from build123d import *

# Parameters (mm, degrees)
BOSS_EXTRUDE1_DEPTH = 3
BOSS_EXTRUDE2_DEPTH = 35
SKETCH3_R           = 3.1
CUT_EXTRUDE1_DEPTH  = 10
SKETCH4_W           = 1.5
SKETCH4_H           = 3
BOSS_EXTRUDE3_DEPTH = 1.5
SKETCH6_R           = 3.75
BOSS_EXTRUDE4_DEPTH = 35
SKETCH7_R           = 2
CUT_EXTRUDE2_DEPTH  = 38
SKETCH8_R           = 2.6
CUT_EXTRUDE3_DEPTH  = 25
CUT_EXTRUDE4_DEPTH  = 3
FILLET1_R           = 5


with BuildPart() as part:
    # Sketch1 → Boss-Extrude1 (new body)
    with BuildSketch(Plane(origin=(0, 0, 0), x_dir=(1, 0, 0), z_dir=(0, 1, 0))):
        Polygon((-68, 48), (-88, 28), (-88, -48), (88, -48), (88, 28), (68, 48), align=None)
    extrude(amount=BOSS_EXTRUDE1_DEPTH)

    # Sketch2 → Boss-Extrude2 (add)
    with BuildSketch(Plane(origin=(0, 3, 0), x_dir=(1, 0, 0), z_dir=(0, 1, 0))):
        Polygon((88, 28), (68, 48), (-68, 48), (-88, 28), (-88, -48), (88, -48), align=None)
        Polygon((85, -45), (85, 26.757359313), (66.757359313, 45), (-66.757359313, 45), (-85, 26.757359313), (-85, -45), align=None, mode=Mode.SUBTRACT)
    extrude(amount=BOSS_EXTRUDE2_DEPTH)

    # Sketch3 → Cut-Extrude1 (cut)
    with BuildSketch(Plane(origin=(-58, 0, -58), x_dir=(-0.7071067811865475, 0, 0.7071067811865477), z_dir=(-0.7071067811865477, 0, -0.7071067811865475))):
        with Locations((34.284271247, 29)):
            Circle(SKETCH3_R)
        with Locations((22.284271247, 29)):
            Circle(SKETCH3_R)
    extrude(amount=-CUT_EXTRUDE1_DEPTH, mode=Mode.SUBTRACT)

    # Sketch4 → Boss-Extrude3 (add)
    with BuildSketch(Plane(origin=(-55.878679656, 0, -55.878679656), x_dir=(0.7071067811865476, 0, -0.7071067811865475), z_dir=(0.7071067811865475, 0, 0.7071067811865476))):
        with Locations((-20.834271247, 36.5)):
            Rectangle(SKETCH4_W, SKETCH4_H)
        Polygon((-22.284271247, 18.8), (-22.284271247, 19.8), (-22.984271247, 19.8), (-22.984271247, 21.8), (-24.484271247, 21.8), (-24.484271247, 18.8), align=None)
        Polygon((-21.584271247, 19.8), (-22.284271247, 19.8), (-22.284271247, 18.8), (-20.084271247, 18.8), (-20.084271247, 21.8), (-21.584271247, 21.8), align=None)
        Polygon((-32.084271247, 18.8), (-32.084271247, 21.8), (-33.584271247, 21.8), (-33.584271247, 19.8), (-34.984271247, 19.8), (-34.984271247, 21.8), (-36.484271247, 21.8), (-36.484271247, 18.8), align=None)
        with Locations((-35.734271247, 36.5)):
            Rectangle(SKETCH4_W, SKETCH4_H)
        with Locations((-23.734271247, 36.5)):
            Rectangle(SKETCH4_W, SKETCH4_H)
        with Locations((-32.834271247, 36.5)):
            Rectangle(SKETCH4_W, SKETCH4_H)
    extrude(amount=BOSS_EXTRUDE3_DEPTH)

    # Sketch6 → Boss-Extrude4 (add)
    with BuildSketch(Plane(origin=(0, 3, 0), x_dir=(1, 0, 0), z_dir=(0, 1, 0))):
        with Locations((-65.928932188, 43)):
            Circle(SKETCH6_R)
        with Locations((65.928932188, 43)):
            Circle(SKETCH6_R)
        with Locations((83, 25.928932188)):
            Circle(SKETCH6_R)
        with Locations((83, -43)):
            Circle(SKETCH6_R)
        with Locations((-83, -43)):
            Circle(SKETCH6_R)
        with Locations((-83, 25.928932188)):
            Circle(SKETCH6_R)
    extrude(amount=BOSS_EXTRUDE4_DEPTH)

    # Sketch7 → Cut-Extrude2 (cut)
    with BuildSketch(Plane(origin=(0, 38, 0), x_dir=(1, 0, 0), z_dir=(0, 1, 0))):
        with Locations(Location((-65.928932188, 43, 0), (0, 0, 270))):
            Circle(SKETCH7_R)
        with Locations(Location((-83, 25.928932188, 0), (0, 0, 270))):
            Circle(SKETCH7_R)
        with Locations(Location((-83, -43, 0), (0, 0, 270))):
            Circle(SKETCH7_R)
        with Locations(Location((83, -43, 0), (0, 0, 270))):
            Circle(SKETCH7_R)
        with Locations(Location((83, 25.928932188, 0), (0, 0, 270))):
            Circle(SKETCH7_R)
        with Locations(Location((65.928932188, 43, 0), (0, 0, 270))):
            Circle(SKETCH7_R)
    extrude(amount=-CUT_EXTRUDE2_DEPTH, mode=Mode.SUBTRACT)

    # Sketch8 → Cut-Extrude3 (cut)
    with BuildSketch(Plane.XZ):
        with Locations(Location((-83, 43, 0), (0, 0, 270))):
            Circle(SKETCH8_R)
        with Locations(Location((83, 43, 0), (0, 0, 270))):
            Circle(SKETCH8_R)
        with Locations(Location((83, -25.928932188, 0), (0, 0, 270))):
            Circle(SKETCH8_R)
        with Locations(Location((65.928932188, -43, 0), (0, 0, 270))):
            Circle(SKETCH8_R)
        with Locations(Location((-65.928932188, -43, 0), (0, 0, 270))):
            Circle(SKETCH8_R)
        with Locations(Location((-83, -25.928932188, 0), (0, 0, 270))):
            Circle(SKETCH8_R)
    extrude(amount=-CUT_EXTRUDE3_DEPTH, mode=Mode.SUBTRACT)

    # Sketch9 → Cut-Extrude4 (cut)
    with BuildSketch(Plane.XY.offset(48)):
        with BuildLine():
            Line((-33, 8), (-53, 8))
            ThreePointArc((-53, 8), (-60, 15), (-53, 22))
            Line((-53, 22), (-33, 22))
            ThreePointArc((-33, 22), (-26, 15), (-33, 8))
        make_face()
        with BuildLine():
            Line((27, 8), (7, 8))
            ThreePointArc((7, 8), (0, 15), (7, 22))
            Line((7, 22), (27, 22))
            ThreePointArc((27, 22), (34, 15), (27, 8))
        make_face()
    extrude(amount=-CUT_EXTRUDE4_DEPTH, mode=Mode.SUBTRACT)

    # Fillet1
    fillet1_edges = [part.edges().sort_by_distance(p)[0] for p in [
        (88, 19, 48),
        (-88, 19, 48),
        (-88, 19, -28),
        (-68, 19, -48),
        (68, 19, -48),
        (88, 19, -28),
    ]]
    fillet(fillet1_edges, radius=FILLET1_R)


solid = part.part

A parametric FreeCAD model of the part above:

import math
import FreeCAD as App
import Part
import Sketcher

V = App.Vector
Q = App.Units.Quantity


def edges_at(feature, points):
    """Names of the edges that pass closest to the given points."""
    edges = feature.Shape.Edges
    near = lambda p: min(range(len(edges)), key=lambda i: edges[i].distToShape(Part.Vertex(*p))[0])
    return sorted({f"Edge{near(p) + 1}" for p in points})

doc = App.newDocument("Part")
body = doc.addObject("PartDesign::Body", "Body")

sketch1 = body.newObject("Sketcher::SketchObject", "Sketch")
sketch1.AttachmentSupport = (doc.getObject("XZ_Plane"), [""])
sketch1.MapMode = "FlatFace"
sketch1.addGeometry([
    Part.LineSegment(V(-68, -48, 0), V(-88, -28, 0)),
    Part.LineSegment(V(-88, -28, 0), V(-88, 48, 0)),
    Part.LineSegment(V(-88, 48, 0), V(88, 48, 0)),
    Part.LineSegment(V(88, 48, 0), V(88, -28, 0)),
    Part.LineSegment(V(88, -28, 0), V(68, -48, 0)),
    Part.LineSegment(V(68, -48, 0), V(-68, -48, 0)),
], False)
sketch1.addConstraint([
    Sketcher.Constraint("Coincident", 0, 2, 1, 1),
    Sketcher.Constraint("Coincident", 1, 2, 2, 1),
    Sketcher.Constraint("Coincident", 2, 2, 3, 1),
    Sketcher.Constraint("Coincident", 3, 2, 4, 1),
    Sketcher.Constraint("Coincident", 4, 2, 5, 1),
    Sketcher.Constraint("Coincident", 5, 2, 0, 1),
    Sketcher.Constraint("Vertical", 1),
    Sketcher.Constraint("Horizontal", 2),
    Sketcher.Constraint("Vertical", 3),
    Sketcher.Constraint("Horizontal", 5),
    Sketcher.Constraint("Symmetric", 0, 2, 3, 2, -2),
    Sketcher.Constraint("Perpendicular", 0, 4),
    Sketcher.Constraint("Equal", 0, 4),
    Sketcher.Constraint("DistanceX", 2, 1, 2, 2, Q("176 mm")),
    Sketcher.Constraint("DistanceX", 5, 2, 5, 1, Q("136 mm")),
    Sketcher.Constraint("DistanceY", 1, 1, 1, 2, Q("76 mm")),
    Sketcher.Constraint("DistanceY", 0, 2, -1, 1, Q("28 mm")),
])
pad1 = body.newObject("PartDesign::Pad", "Pad")
pad1.Profile = sketch1
pad1.Length = 3
pad1.Reversed = True

sketch2 = body.newObject("Sketcher::SketchObject", "Sketch001")
sketch2.AttachmentSupport = (doc.getObject("XZ_Plane"), [""])
sketch2.MapMode = "FlatFace"
sketch2.AttachmentOffset = App.Placement(V(0, 0, -3), App.Rotation())
sketch2.addGeometry([
    Part.LineSegment(V(88, -28, 0), V(68, -48, 0)),
    Part.LineSegment(V(68, -48, 0), V(-68, -48, 0)),
    Part.LineSegment(V(-68, -48, 0), V(-88, -28, 0)),
    Part.LineSegment(V(-88, -28, 0), V(-88, 48, 0)),
    Part.LineSegment(V(-88, 48, 0), V(88, 48, 0)),
    Part.LineSegment(V(88, 48, 0), V(88, -28, 0)),
    Part.LineSegment(V(85, -27, 0), V(85, 45, 0)),
    Part.LineSegment(V(85, 45, 0), V(-85, 45, 0)),
    Part.LineSegment(V(-85, 45, 0), V(-85, -27, 0)),
    Part.LineSegment(V(-85, -27, 0), V(-67, -45, 0)),
    Part.LineSegment(V(-67, -45, 0), V(67, -45, 0)),
    Part.LineSegment(V(67, -45, 0), V(85, -27, 0)),
], False)
sketch2.addConstraint([
    Sketcher.Constraint("Coincident", 0, 2, 1, 1),
    Sketcher.Constraint("Coincident", 1, 2, 2, 1),
    Sketcher.Constraint("Coincident", 2, 2, 3, 1),
    Sketcher.Constraint("Coincident", 3, 2, 4, 1),
    Sketcher.Constraint("Coincident", 4, 2, 5, 1),
    Sketcher.Constraint("Coincident", 5, 2, 0, 1),
    Sketcher.Constraint("Coincident", 6, 2, 7, 1),
    Sketcher.Constraint("Coincident", 7, 2, 8, 1),
    Sketcher.Constraint("Coincident", 8, 2, 9, 1),
    Sketcher.Constraint("Coincident", 9, 2, 10, 1),
    Sketcher.Constraint("Coincident", 10, 2, 11, 1),
    Sketcher.Constraint("Coincident", 11, 2, 6, 1),
    Sketcher.Constraint("Horizontal", 1),
    Sketcher.Constraint("Vertical", 3),
    Sketcher.Constraint("Horizontal", 4),
    Sketcher.Constraint("Vertical", 5),
    Sketcher.Constraint("Vertical", 6),
    Sketcher.Constraint("Horizontal", 7),
    Sketcher.Constraint("Vertical", 8),
    Sketcher.Constraint("Horizontal", 10),
    Sketcher.Constraint("Symmetric", 2, 2, 5, 2, -2),
    Sketcher.Constraint("Symmetric", 8, 2, 11, 2, -2),
    Sketcher.Constraint("Perpendicular", 0, 2),
    Sketcher.Constraint("Parallel", 2, 9),
    Sketcher.Constraint("Perpendicular", 9, 11),
    Sketcher.Constraint("Equal", 0, 2),
    Sketcher.Constraint("DistanceX", 1, 2, 1, 1, Q("136 mm")),
    Sketcher.Constraint("DistanceX", 4, 1, 4, 2, Q("176 mm")),
    Sketcher.Constraint("DistanceX", 7, 2, 7, 1, Q("170 mm")),
    Sketcher.Constraint("DistanceY", 3, 1, 3, 2, Q("76 mm")),
    Sketcher.Constraint("DistanceY", 0, 2, -1, 1, Q("48 mm")),
    Sketcher.Constraint("DistanceY", -1, 1, 6, 2, Q("45 mm")),
    Sketcher.Constraint("DistanceY", 9, 2, -1, 1, Q("45 mm")),
    Sketcher.Constraint("DistanceX", 10, 1, 10, 2, Q("133.514719 mm")),
])
pad2 = body.newObject("PartDesign::Pad", "Pad001")
pad2.Profile = sketch2
pad2.Length = 35
pad2.Reversed = True

sketch3 = body.newObject("Sketcher::SketchObject", "Sketch002")
sketch3.Placement = App.Placement(V(-58, 0, -58), App.Rotation(V(-0.707106781, 0, 0.707106781), V(0, 0.999999999, 0), V(-0.707106781, 0, -0.707106781), "ZXY"))
sketch3.addGeometry([
    Part.Circle(V(34.3, 29, 0), V(0, 0, 1), 3.1),
    Part.Circle(V(22.3, 29, 0), V(0, 0, 1), 3.1),
], False)
sketch3.addConstraint([
    Sketcher.Constraint("Equal", 0, 1),
    Sketcher.Constraint("Horizontal", 0, 3, 1, 3),
    Sketcher.Constraint("Diameter", 0, Q("6.2 mm")),
    Sketcher.Constraint("DistanceY", -1, 1, 0, 3, Q("29 mm")),
    Sketcher.Constraint("DistanceX", 1, 3, 0, 3, Q("12 mm")),
    Sketcher.Constraint("DistanceX", -1, 1, 0, 3, Q("34.284271 mm")),
])
pocket1 = body.newObject("PartDesign::Pocket", "Pocket")
pocket1.Profile = sketch3
pocket1.Length = 10

sketch4 = body.newObject("Sketcher::SketchObject", "Sketch003")
sketch4.Placement = App.Placement(V(-55.87868, 0, -55.87868), App.Rotation(V(0.707106781, 0, -0.707106781), V(0, 0.999999999, 0), V(0.707106781, 0, 0.707106781), "ZXY"))
sketch4.addGeometry([
    Part.LineSegment(V(-21.6, 38, 0), V(-21.6, 35, 0)),
    Part.LineSegment(V(-21.6, 35, 0), V(-20.1, 35, 0)),
    Part.LineSegment(V(-20.1, 35, 0), V(-20.1, 38, 0)),
    Part.LineSegment(V(-20.1, 38, 0), V(-21.6, 38, 0)),
    Part.LineSegment(V(-23, 19.8, 0), V(-23, 21.8, 0)),
    Part.LineSegment(V(-23, 21.8, 0), V(-24.5, 21.8, 0)),
    Part.LineSegment(V(-24.5, 21.8, 0), V(-24.5, 18.8, 0)),
    Part.LineSegment(V(-24.5, 18.8, 0), V(-20.1, 18.8, 0)),
    Part.LineSegment(V(-20.1, 18.8, 0), V(-20.1, 21.8, 0)),
    Part.LineSegment(V(-20.1, 21.8, 0), V(-21.6, 21.8, 0)),
    Part.LineSegment(V(-21.6, 21.8, 0), V(-21.6, 19.8, 0)),
    Part.LineSegment(V(-21.6, 19.8, 0), V(-23, 19.8, 0)),
    Part.LineSegment(V(-32.1, 18.8, 0), V(-32.1, 21.8, 0)),
    Part.LineSegment(V(-32.1, 21.8, 0), V(-33.6, 21.8, 0)),
    Part.LineSegment(V(-33.6, 21.8, 0), V(-33.6, 19.8, 0)),
    Part.LineSegment(V(-33.6, 19.8, 0), V(-35, 19.8, 0)),
    Part.LineSegment(V(-35, 19.8, 0), V(-35, 21.8, 0)),
    Part.LineSegment(V(-35, 21.8, 0), V(-36.5, 21.8, 0)),
    Part.LineSegment(V(-36.5, 21.8, 0), V(-36.5, 18.8, 0)),
    Part.LineSegment(V(-36.5, 18.8, 0), V(-32.1, 18.8, 0)),
    Part.LineSegment(V(-36.5, 38, 0), V(-36.5, 35, 0)),
    Part.LineSegment(V(-36.5, 35, 0), V(-35, 35, 0)),
    Part.LineSegment(V(-35, 35, 0), V(-35, 38, 0)),
    Part.LineSegment(V(-35, 38, 0), V(-36.5, 38, 0)),
    Part.LineSegment(V(-24.5, 38, 0), V(-24.5, 35, 0)),
    Part.LineSegment(V(-24.5, 35, 0), V(-23, 35, 0)),
    Part.LineSegment(V(-23, 35, 0), V(-23, 38, 0)),
    Part.LineSegment(V(-23, 38, 0), V(-24.5, 38, 0)),
    Part.LineSegment(V(-33.6, 38, 0), V(-33.6, 35, 0)),
    Part.LineSegment(V(-33.6, 35, 0), V(-32.1, 35, 0)),
    Part.LineSegment(V(-32.1, 35, 0), V(-32.1, 38, 0)),
    Part.LineSegment(V(-32.1, 38, 0), V(-33.6, 38, 0)),
], False)
sketch4.addConstraint([
    Sketcher.Constraint("Coincident", 0, 2, 1, 1),
    Sketcher.Constraint("Coincident", 1, 2, 2, 1),
    Sketcher.Constraint("Coincident", 2, 2, 3, 1),
    Sketcher.Constraint("Coincident", 3, 2, 0, 1),
    Sketcher.Constraint("Coincident", 4, 2, 5, 1),
    Sketcher.Constraint("Coincident", 5, 2, 6, 1),
    Sketcher.Constraint("Coincident", 6, 2, 7, 1),
    Sketcher.Constraint("Coincident", 7, 2, 8, 1),
    Sketcher.Constraint("Coincident", 8, 2, 9, 1),
    Sketcher.Constraint("Coincident", 9, 2, 10, 1),
    Sketcher.Constraint("Coincident", 10, 2, 11, 1),
    Sketcher.Constraint("Coincident", 11, 2, 4, 1),
    Sketcher.Constraint("Coincident", 12, 2, 13, 1),
    Sketcher.Constraint("Coincident", 13, 2, 14, 1),
    Sketcher.Constraint("Coincident", 14, 2, 15, 1),
    Sketcher.Constraint("Coincident", 15, 2, 16, 1),
    Sketcher.Constraint("Coincident", 16, 2, 17, 1),
    Sketcher.Constraint("Coincident", 17, 2, 18, 1),
    Sketcher.Constraint("Coincident", 18, 2, 19, 1),
    Sketcher.Constraint("Coincident", 19, 2, 12, 1),
    Sketcher.Constraint("Coincident", 20, 2, 21, 1),
    Sketcher.Constraint("Coincident", 21, 2, 22, 1),
    Sketcher.Constraint("Coincident", 22, 2, 23, 1),
    Sketcher.Constraint("Coincident", 23, 2, 20, 1),
    Sketcher.Constraint("Coincident", 24, 2, 25, 1),
    Sketcher.Constraint("Coincident", 25, 2, 26, 1),
    Sketcher.Constraint("Coincident", 26, 2, 27, 1),
    Sketcher.Constraint("Coincident", 27, 2, 24, 1),
    Sketcher.Constraint("Coincident", 28, 2, 29, 1),
    Sketcher.Constraint("Coincident", 29, 2, 30, 1),
    Sketcher.Constraint("Coincident", 30, 2, 31, 1),
    Sketcher.Constraint("Coincident", 31, 2, 28, 1),
    Sketcher.Constraint("Vertical", 0),
    Sketcher.Constraint("Horizontal", 1),
    Sketcher.Constraint("Vertical", 2),
    Sketcher.Constraint("Horizontal", 3),
    Sketcher.Constraint("Vertical", 4),
    Sketcher.Constraint("Horizontal", 5),
    Sketcher.Constraint("Vertical", 6),
    Sketcher.Constraint("Horizontal", 7),
    Sketcher.Constraint("Vertical", 8),
    Sketcher.Constraint("Horizontal", 9),
    Sketcher.Constraint("Vertical", 10),
    Sketcher.Constraint("Horizontal", 11),
    Sketcher.Constraint("Vertical", 12),
    Sketcher.Constraint("Horizontal", 13),
    Sketcher.Constraint("Vertical", 14),
    Sketcher.Constraint("Horizontal", 15),
    Sketcher.Constraint("Vertical", 16),
    Sketcher.Constraint("Horizontal", 17),
    Sketcher.Constraint("Vertical", 18),
    Sketcher.Constraint("Horizontal", 19),
    Sketcher.Constraint("Vertical", 20),
    Sketcher.Constraint("Horizontal", 21),
    Sketcher.Constraint("Vertical", 22),
    Sketcher.Constraint("Horizontal", 23),
    Sketcher.Constraint("Vertical", 24),
    Sketcher.Constraint("Horizontal", 25),
    Sketcher.Constraint("Vertical", 26),
    Sketcher.Constraint("Horizontal", 27),
    Sketcher.Constraint("Vertical", 28),
    Sketcher.Constraint("Horizontal", 29),
    Sketcher.Constraint("Vertical", 30),
    Sketcher.Constraint("Horizontal", 31),
    Sketcher.Constraint("Horizontal", 5, 2, 8, 2),
    Sketcher.Constraint("Horizontal", 9, 2, 12, 2),
    Sketcher.Constraint("Horizontal", 11, 2, 14, 2),
    Sketcher.Constraint("Horizontal", 13, 2, 16, 2),
    Sketcher.Constraint("Horizontal", 7, 2, 18, 2),
    Sketcher.Constraint("Horizontal", 1, 2, 20, 2),
    Sketcher.Constraint("Horizontal", 3, 2, 22, 2),
    Sketcher.Constraint("Horizontal", 21, 2, 24, 2),
    Sketcher.Constraint("Horizontal", 23, 2, 26, 2),
    Sketcher.Constraint("Horizontal", 25, 2, 28, 2),
    Sketcher.Constraint("Horizontal", 27, 2, 30, 2),
    Sketcher.Constraint("Vertical", 2, 2, 7, 2),
    Sketcher.Constraint("Vertical", 3, 2, 9, 2),
    Sketcher.Constraint("Vertical", 18, 2, 20, 2),
    Sketcher.Constraint("Vertical", 16, 2, 21, 2),
    Sketcher.Constraint("Vertical", 6, 2, 24, 2),
    Sketcher.Constraint("Vertical", 11, 2, 25, 2),
    Sketcher.Constraint("Vertical", 14, 2, 28, 2),
    Sketcher.Constraint("Vertical", 19, 2, 29, 2),
    Sketcher.Constraint("Equal", 3, 5),
    Sketcher.Constraint("Equal", 9, 13),
    Sketcher.Constraint("Equal", 11, 15),
    Sketcher.Constraint("Equal", 13, 17),
    Sketcher.Constraint("Equal", 2, 6),
    Sketcher.Constraint("DistanceY", 0, 2, 0, 1, Q("3 mm")),
    Sketcher.Constraint("DistanceY", 4, 1, 4, 2, Q("2 mm")),
    Sketcher.Constraint("DistanceX", 1, 1, 1, 2, Q("1.5 mm")),
    Sketcher.Constraint("DistanceX", 7, 1, 7, 2, Q("4.4 mm")),
    Sketcher.Constraint("DistanceY", -1, 1, 0, 2, Q("35 mm")),
    Sketcher.Constraint("DistanceY", -1, 1, 4, 2, Q("21.8 mm")),
    Sketcher.Constraint("DistanceX", 12, 2, 5, 2, Q("7.6 mm")),
    Sketcher.Constraint("DistanceX", 0, 2, -1, 1, Q("21.584271 mm")),
])
pad3 = body.newObject("PartDesign::Pad", "Pad002")
pad3.Profile = sketch4
pad3.Length = 1.5

sketch5 = body.newObject("Sketcher::SketchObject", "Sketch004")
sketch5.AttachmentSupport = (doc.getObject("XZ_Plane"), [""])
sketch5.MapMode = "FlatFace"
sketch5.AttachmentOffset = App.Placement(V(0, 0, -3), App.Rotation())
sketch5.addGeometry([
    Part.Circle(V(-65.9, -43, 0), V(0, 0, 1), 3.8),
    Part.Circle(V(65.9, -43, 0), V(0, 0, 1), 3.8),
    Part.Circle(V(83, -25.9, 0), V(0, 0, 1), 3.8),
    Part.Circle(V(83, 43, 0), V(0, 0, 1), 3.8),
    Part.Circle(V(-83, 43, 0), V(0, 0, 1), 3.8),
    Part.Circle(V(-83, -25.9, 0), V(0, 0, 1), 3.8),
], False)
sketch5.addConstraint([
    Sketcher.Constraint("Equal", 0, 1),
    Sketcher.Constraint("Equal", 1, 2),
    Sketcher.Constraint("Equal", 2, 3),
    Sketcher.Constraint("Equal", 3, 4),
    Sketcher.Constraint("Equal", 4, 5),
    Sketcher.Constraint("Symmetric", 0, 3, 1, 3, -2),
    Sketcher.Constraint("Symmetric", 3, 3, 4, 3, -2),
    Sketcher.Constraint("Symmetric", 2, 3, 5, 3, -2),
    Sketcher.Constraint("Vertical", 2, 3, 3, 3),
    Sketcher.Constraint("Diameter", 0, Q("7.5 mm")),
    Sketcher.Constraint("DistanceY", 0, 3, -1, 1, Q("43 mm")),
    Sketcher.Constraint("DistanceX", -1, 1, 2, 3, Q("83 mm")),
    Sketcher.Constraint("DistanceY", -1, 1, 3, 3, Q("43 mm")),
    Sketcher.Constraint("DistanceX", 0, 3, -1, 1, Q("65.928932 mm")),
    Sketcher.Constraint("DistanceY", 2, 3, -1, 1, Q("25.928932 mm")),
])
pad4 = body.newObject("PartDesign::Pad", "Pad003")
pad4.Profile = sketch5
pad4.Length = 35
pad4.Reversed = True

sketch6 = body.newObject("Sketcher::SketchObject", "Sketch005")
sketch6.AttachmentSupport = (doc.getObject("XZ_Plane"), [""])
sketch6.MapMode = "FlatFace"
sketch6.AttachmentOffset = App.Placement(V(0, 0, -38), App.Rotation())
sketch6.addGeometry([
    Part.Circle(V(-65.9, -43, 0), V(0, 0, 1), 2),
    Part.Circle(V(-83, -25.9, 0), V(0, 0, 1), 2),
    Part.Circle(V(-83, 43, 0), V(0, 0, 1), 2),
    Part.Circle(V(83, 43, 0), V(0, 0, 1), 2),
    Part.Circle(V(83, -25.9, 0), V(0, 0, 1), 2),
    Part.Circle(V(65.9, -43, 0), V(0, 0, 1), 2),
], False)
sketch6.addConstraint([
    Sketcher.Constraint("Equal", 0, 1),
    Sketcher.Constraint("Equal", 1, 2),
    Sketcher.Constraint("Equal", 2, 3),
    Sketcher.Constraint("Equal", 3, 4),
    Sketcher.Constraint("Equal", 4, 5),
    Sketcher.Constraint("Symmetric", 2, 3, 3, 3, -2),
    Sketcher.Constraint("Symmetric", 1, 3, 4, 3, -2),
    Sketcher.Constraint("Symmetric", 0, 3, 5, 3, -2),
    Sketcher.Constraint("Vertical", 1, 3, 2, 3),
    Sketcher.Constraint("Diameter", 0, Q("4 mm")),
    Sketcher.Constraint("DistanceY", 0, 3, -1, 1, Q("43 mm")),
    Sketcher.Constraint("DistanceX", 1, 3, -1, 1, Q("83 mm")),
    Sketcher.Constraint("DistanceY", -1, 1, 2, 3, Q("43 mm")),
    Sketcher.Constraint("DistanceX", 0, 3, -1, 1, Q("65.928932 mm")),
    Sketcher.Constraint("DistanceY", 1, 3, -1, 1, Q("25.928932 mm")),
])
pocket2 = body.newObject("PartDesign::Pocket", "Pocket001")
pocket2.Profile = sketch6
pocket2.Length = 38
pocket2.Reversed = True

sketch7 = body.newObject("Sketcher::SketchObject", "Sketch006")
sketch7.AttachmentSupport = (doc.getObject("XZ_Plane"), [""])
sketch7.MapMode = "FlatFace"
sketch7.addGeometry([
    Part.Circle(V(-83, 43, 0), V(0, 0, 1), 2.6),
    Part.Circle(V(83, 43, 0), V(0, 0, 1), 2.6),
    Part.Circle(V(83, -25.9, 0), V(0, 0, 1), 2.6),
    Part.Circle(V(65.9, -43, 0), V(0, 0, 1), 2.6),
    Part.Circle(V(-65.9, -43, 0), V(0, 0, 1), 2.6),
    Part.Circle(V(-83, -25.9, 0), V(0, 0, 1), 2.6),
], False)
sketch7.addConstraint([
    Sketcher.Constraint("Equal", 0, 1),
    Sketcher.Constraint("Equal", 1, 2),
    Sketcher.Constraint("Equal", 2, 3),
    Sketcher.Constraint("Equal", 3, 4),
    Sketcher.Constraint("Equal", 4, 5),
    Sketcher.Constraint("Symmetric", 0, 3, 1, 3, -2),
    Sketcher.Constraint("Symmetric", 3, 3, 4, 3, -2),
    Sketcher.Constraint("Symmetric", 2, 3, 5, 3, -2),
    Sketcher.Constraint("Vertical", 1, 3, 2, 3),
    Sketcher.Constraint("Diameter", 0, Q("5.2 mm")),
    Sketcher.Constraint("DistanceX", 0, 3, -1, 1, Q("83 mm")),
    Sketcher.Constraint("DistanceY", -1, 1, 0, 3, Q("43 mm")),
    Sketcher.Constraint("DistanceY", 3, 3, -1, 1, Q("43 mm")),
    Sketcher.Constraint("DistanceY", 2, 3, -1, 1, Q("25.928932 mm")),
    Sketcher.Constraint("DistanceX", -1, 1, 3, 3, Q("65.928932 mm")),
])
pocket3 = body.newObject("PartDesign::Pocket", "Pocket002")
pocket3.Profile = sketch7
pocket3.Length = 25

sketch8 = body.newObject("Sketcher::SketchObject", "Sketch007")
sketch8.AttachmentSupport = (doc.getObject("XY_Plane"), [""])
sketch8.MapMode = "FlatFace"
sketch8.AttachmentOffset = App.Placement(V(0, 0, 48), App.Rotation())
sketch8.addGeometry([
    Part.LineSegment(V(-53, 8, 0), V(-33, 8, 0)),
    Part.ArcOfCircle(Part.Circle(V(-33, 15, 0), V(0, 0, 1), 7), math.radians(-90), math.radians(90)),
    Part.LineSegment(V(-33, 22, 0), V(-53, 22, 0)),
    Part.ArcOfCircle(Part.Circle(V(-53, 15, 0), V(0, 0, 1), 7), math.radians(90), math.radians(270)),
    Part.LineSegment(V(7, 8, 0), V(27, 8, 0)),
    Part.ArcOfCircle(Part.Circle(V(27, 15, 0), V(0, 0, 1), 7), math.radians(-90), math.radians(90)),
    Part.LineSegment(V(27, 22, 0), V(7, 22, 0)),
    Part.ArcOfCircle(Part.Circle(V(7, 15, 0), V(0, 0, 1), 7), math.radians(90), math.radians(270)),
], False)
sketch8.addConstraint([
    Sketcher.Constraint("Tangent", 0, 2, 1, 1),
    Sketcher.Constraint("Tangent", 1, 2, 2, 1),
    Sketcher.Constraint("Tangent", 2, 2, 3, 1),
    Sketcher.Constraint("Tangent", 3, 2, 0, 1),
    Sketcher.Constraint("Tangent", 4, 2, 5, 1),
    Sketcher.Constraint("Tangent", 5, 2, 6, 1),
    Sketcher.Constraint("Tangent", 6, 2, 7, 1),
    Sketcher.Constraint("Tangent", 7, 2, 4, 1),
    Sketcher.Constraint("Horizontal", 0),
    Sketcher.Constraint("Horizontal", 2),
    Sketcher.Constraint("Horizontal", 4),
    Sketcher.Constraint("Horizontal", 6),
    Sketcher.Constraint("Equal", 3, 5),
    Sketcher.Constraint("Horizontal", 3, 3, 5, 3),
    Sketcher.Constraint("Equal", 2, 4),
    Sketcher.Constraint("Radius", 1, Q("7 mm")),
    Sketcher.Constraint("DistanceX", 0, 1, 0, 2, Q("20 mm")),
    Sketcher.Constraint("DistanceX", 1, 3, -1, 1, Q("33 mm")),
    Sketcher.Constraint("DistanceY", -1, 1, 1, 3, Q("15 mm")),
    Sketcher.Constraint("DistanceX", -1, 1, 5, 3, Q("27 mm")),
])
pocket4 = body.newObject("PartDesign::Pocket", "Pocket003")
pocket4.Profile = sketch8
pocket4.Length = 3
doc.recompute()

fillet = body.newObject("PartDesign::Fillet", "Fillet")
fillet.Base = (pocket4, edges_at(pocket4, [
    (88, 19, 48),
    (-88, 19, 48),
    (-88, 19, -28),
    (-68, 19, -48),
    (68, 19, -48),
    (88, 19, -28),
]))
fillet.Radius = 5

doc.recompute()
